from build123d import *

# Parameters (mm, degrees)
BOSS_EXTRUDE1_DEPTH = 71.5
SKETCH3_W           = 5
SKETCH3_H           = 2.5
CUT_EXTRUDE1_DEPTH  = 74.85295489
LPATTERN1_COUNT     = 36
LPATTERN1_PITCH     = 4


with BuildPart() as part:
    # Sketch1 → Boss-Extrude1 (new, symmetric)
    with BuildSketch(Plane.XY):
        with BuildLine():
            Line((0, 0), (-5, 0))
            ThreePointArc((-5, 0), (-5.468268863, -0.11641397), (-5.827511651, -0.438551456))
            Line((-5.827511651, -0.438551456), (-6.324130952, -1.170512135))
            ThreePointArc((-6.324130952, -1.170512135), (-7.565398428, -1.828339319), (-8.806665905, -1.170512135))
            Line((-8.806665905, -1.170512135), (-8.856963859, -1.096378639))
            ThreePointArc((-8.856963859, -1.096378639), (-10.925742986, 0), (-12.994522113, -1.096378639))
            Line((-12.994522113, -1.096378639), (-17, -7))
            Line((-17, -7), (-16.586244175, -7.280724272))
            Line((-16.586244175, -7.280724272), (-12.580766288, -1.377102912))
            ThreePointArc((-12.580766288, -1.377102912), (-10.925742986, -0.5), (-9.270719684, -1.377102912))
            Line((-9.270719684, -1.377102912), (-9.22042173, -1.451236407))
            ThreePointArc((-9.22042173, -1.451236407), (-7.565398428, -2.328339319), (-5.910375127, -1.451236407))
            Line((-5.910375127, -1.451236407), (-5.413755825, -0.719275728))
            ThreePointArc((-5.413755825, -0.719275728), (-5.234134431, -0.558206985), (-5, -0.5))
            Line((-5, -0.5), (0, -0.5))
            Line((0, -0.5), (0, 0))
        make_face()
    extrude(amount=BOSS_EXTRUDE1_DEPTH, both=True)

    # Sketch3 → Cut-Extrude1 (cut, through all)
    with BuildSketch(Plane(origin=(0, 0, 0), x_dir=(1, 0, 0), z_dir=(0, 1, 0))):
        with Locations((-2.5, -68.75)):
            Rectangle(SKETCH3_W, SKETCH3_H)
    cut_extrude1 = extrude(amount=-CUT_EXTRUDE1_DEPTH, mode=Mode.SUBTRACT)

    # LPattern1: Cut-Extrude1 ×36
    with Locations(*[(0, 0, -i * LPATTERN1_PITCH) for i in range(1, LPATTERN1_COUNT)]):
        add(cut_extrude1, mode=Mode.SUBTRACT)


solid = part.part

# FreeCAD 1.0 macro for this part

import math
import FreeCAD as App
import Part
import Sketcher

V = App.Vector
Q = App.Units.Quantity

doc = App.newDocument("Part")
body = doc.addObject("PartDesign::Body", "Body")

# Sketch on XY plane
sketch1 = doc.addObject("Sketcher::SketchObject", "Sketch")
body.addObject(sketch1)
sketch1.AttachmentSupport = (doc.XY_Plane, [""])
sketch1.MapMode = "FlatFace"
sketch1.addGeometry([
    Part.LineSegment(V(0, 0, 0), V(-5, 0, 0)),  # 0
    Part.ArcOfCircle(Part.Circle(V(-5, -1, 0), V(0, 0, 1), 1), math.radians(90), math.radians(145.843967)),  # 1
    Part.LineSegment(V(-5.827512, -0.438551, 0), V(-6.324131, -1.170512, 0)),  # 2
    Part.ArcOfCircle(Part.Circle(V(-7.565398, -0.328339, 0), V(0, 0, 1), 1.5), math.radians(-145.843966), math.radians(-34.156034)),  # 3
    Part.LineSegment(V(-8.806666, -1.170512, 0), V(-8.856964, -1.096379, 0)),  # 4
    Part.ArcOfCircle(Part.Circle(V(-10.925743, -2.5, 0), V(0, 0, 1), 2.5), math.radians(34.156034), math.radians(145.843966)),  # 5
    Part.LineSegment(V(-12.994522, -1.096379, 0), V(-17, -7, 0)),  # 6
    Part.LineSegment(V(-17, -7, 0), V(-16.586244, -7.280724, 0)),  # 7
    Part.LineSegment(V(-16.586244, -7.280724, 0), V(-12.580766, -1.377103, 0)),  # 8
    Part.ArcOfCircle(Part.Circle(V(-10.925743, -2.5, 0), V(0, 0, 1), 2), math.radians(34.156034), math.radians(145.843966)),  # 9
    Part.LineSegment(V(-9.27072, -1.377103, 0), V(-9.220422, -1.451236, 0)),  # 10
    Part.ArcOfCircle(Part.Circle(V(-7.565398, -0.328339, 0), V(0, 0, 1), 2), math.radians(-145.843967), math.radians(-34.156034)),  # 11
    Part.LineSegment(V(-5.910375, -1.451236, 0), V(-5.413756, -0.719276, 0)),  # 12
    Part.ArcOfCircle(Part.Circle(V(-5, -1, 0), V(0, 0, 1), 0.5), math.radians(90), math.radians(145.843967)),  # 13
    Part.LineSegment(V(-5, -0.5, 0), V(0, -0.5, 0)),  # 14
    Part.LineSegment(V(0, -0.5, 0), V(0, 0, 0)),  # 15
], False)
sketch1.addConstraint([
    Sketcher.Constraint("Tangent", 0, 2, 1, 1),
    Sketcher.Constraint("Tangent", 1, 2, 2, 1),
    Sketcher.Constraint("Tangent", 2, 2, 3, 2),
    Sketcher.Constraint("Tangent", 3, 1, 4, 1),
    Sketcher.Constraint("Tangent", 4, 2, 5, 1),
    Sketcher.Constraint("Tangent", 5, 2, 6, 1),
    Sketcher.Constraint("Coincident", 6, 2, 7, 1),
    Sketcher.Constraint("Coincident", 7, 2, 8, 1),
    Sketcher.Constraint("Tangent", 8, 2, 9, 2),
    Sketcher.Constraint("Tangent", 9, 1, 10, 1),
    Sketcher.Constraint("Tangent", 10, 2, 11, 1),
    Sketcher.Constraint("Tangent", 11, 2, 12, 1),
    Sketcher.Constraint("Tangent", 12, 2, 13, 2),
    Sketcher.Constraint("Tangent", 13, 1, 14, 1),
    Sketcher.Constraint("Coincident", 14, 2, 15, 1),
    Sketcher.Constraint("Coincident", 15, 2, 0, 1),
    Sketcher.Constraint("Horizontal", 0),
    Sketcher.Constraint("Horizontal", 14),
    Sketcher.Constraint("Vertical", 15),
    Sketcher.Constraint("Coincident", 15, 2, -1, 1),
    Sketcher.Constraint("Coincident", 9, 3, 5, 3),
    Sketcher.Constraint("Coincident", 11, 3, 3, 3),
    Sketcher.Constraint("Coincident", 13, 3, 1, 3),
    Sketcher.Constraint("Equal", 9, 11),
    Sketcher.Constraint("Parallel", 2, 6),
    Sketcher.Constraint("Perpendicular", 6, 7),
    Sketcher.Constraint("Perpendicular", 7, 8),
    Sketcher.Constraint("Parallel", 4, 10),
    Sketcher.Constraint("Parallel", 8, 12),
    Sketcher.Constraint("Horizontal", 2, 2, 3, 1),
    Sketcher.Constraint("Radius", 1, Q("1 mm")),
    Sketcher.Constraint("Radius", 9, Q("2 mm")),
    Sketcher.Constraint("Radius", 3, Q("1.5 mm")),
    Sketcher.Constraint("DistanceX", 0, 2, 0, 1, Q("5 mm")),
    Sketcher.Constraint("DistanceX", 6, 2, -1, 1, Q("17 mm")),
    Sketcher.Constraint("DistanceY", 6, 2, -1, 1, Q("7 mm")),
    Sketcher.Constraint("DistanceY", 5, 3, -1, 1, Q("2.5 mm")),
    Sketcher.Constraint("DistanceX", 3, 3, -1, 1, Q("7.565398 mm")),
])
pad1 = doc.addObject("PartDesign::Pad", "Pad")
body.addObject(pad1)
pad1.Profile = sketch1
pad1.Length = 143
pad1.Midplane = True

# Sketch on XZ plane
sketch2 = doc.addObject("Sketcher::SketchObject", "Sketch001")
body.addObject(sketch2)
sketch2.AttachmentSupport = (doc.XZ_Plane, [""])
sketch2.MapMode = "FlatFace"
sketch2.addGeometry([
    Part.LineSegment(V(-5, 67.5, 0), V(-5, 70, 0)),
    Part.LineSegment(V(-5, 70, 0), V(0, 70, 0)),
    Part.LineSegment(V(0, 70, 0), V(0, 67.5, 0)),
    Part.LineSegment(V(0, 67.5, 0), V(-5, 67.5, 0)),
], False)
sketch2.addConstraint([
    Sketcher.Constraint("Coincident", 0, 2, 1, 1),
    Sketcher.Constraint("Coincident", 1, 2, 2, 1),
    Sketcher.Constraint("Coincident", 2, 2, 3, 1),
    Sketcher.Constraint("Coincident", 3, 2, 0, 1),
    Sketcher.Constraint("Vertical", 0),
    Sketcher.Constraint("Horizontal", 1),
    Sketcher.Constraint("Vertical", 2),
    Sketcher.Constraint("Horizontal", 3),
    Sketcher.Constraint("PointOnObject", 1, 2, -2),
    Sketcher.Constraint("DistanceX", 1, 1, 1, 2, Q("5 mm")),
    Sketcher.Constraint("DistanceY", 0, 1, 0, 2, Q("2.5 mm")),
    Sketcher.Constraint("DistanceY", -1, 1, 0, 2, Q("70 mm")),
])
pocket1 = doc.addObject("PartDesign::Pocket", "Pocket")
body.addObject(pocket1)
pocket1.Profile = sketch2
pocket1.Type = "ThroughAll"
pocket1.Reversed = True
doc.recompute()

linearpattern = doc.addObject("PartDesign::LinearPattern", "LinearPattern")
body.addObject(linearpattern)
linearpattern.Originals = [pocket1]
linearpattern.Direction = (doc.Z_Axis, [""])
linearpattern.Mode = "offset"
linearpattern.Offset = 4
linearpattern.Occurrences = 36
linearpattern.Reversed = True
body.Tip = linearpattern

doc.recompute()
